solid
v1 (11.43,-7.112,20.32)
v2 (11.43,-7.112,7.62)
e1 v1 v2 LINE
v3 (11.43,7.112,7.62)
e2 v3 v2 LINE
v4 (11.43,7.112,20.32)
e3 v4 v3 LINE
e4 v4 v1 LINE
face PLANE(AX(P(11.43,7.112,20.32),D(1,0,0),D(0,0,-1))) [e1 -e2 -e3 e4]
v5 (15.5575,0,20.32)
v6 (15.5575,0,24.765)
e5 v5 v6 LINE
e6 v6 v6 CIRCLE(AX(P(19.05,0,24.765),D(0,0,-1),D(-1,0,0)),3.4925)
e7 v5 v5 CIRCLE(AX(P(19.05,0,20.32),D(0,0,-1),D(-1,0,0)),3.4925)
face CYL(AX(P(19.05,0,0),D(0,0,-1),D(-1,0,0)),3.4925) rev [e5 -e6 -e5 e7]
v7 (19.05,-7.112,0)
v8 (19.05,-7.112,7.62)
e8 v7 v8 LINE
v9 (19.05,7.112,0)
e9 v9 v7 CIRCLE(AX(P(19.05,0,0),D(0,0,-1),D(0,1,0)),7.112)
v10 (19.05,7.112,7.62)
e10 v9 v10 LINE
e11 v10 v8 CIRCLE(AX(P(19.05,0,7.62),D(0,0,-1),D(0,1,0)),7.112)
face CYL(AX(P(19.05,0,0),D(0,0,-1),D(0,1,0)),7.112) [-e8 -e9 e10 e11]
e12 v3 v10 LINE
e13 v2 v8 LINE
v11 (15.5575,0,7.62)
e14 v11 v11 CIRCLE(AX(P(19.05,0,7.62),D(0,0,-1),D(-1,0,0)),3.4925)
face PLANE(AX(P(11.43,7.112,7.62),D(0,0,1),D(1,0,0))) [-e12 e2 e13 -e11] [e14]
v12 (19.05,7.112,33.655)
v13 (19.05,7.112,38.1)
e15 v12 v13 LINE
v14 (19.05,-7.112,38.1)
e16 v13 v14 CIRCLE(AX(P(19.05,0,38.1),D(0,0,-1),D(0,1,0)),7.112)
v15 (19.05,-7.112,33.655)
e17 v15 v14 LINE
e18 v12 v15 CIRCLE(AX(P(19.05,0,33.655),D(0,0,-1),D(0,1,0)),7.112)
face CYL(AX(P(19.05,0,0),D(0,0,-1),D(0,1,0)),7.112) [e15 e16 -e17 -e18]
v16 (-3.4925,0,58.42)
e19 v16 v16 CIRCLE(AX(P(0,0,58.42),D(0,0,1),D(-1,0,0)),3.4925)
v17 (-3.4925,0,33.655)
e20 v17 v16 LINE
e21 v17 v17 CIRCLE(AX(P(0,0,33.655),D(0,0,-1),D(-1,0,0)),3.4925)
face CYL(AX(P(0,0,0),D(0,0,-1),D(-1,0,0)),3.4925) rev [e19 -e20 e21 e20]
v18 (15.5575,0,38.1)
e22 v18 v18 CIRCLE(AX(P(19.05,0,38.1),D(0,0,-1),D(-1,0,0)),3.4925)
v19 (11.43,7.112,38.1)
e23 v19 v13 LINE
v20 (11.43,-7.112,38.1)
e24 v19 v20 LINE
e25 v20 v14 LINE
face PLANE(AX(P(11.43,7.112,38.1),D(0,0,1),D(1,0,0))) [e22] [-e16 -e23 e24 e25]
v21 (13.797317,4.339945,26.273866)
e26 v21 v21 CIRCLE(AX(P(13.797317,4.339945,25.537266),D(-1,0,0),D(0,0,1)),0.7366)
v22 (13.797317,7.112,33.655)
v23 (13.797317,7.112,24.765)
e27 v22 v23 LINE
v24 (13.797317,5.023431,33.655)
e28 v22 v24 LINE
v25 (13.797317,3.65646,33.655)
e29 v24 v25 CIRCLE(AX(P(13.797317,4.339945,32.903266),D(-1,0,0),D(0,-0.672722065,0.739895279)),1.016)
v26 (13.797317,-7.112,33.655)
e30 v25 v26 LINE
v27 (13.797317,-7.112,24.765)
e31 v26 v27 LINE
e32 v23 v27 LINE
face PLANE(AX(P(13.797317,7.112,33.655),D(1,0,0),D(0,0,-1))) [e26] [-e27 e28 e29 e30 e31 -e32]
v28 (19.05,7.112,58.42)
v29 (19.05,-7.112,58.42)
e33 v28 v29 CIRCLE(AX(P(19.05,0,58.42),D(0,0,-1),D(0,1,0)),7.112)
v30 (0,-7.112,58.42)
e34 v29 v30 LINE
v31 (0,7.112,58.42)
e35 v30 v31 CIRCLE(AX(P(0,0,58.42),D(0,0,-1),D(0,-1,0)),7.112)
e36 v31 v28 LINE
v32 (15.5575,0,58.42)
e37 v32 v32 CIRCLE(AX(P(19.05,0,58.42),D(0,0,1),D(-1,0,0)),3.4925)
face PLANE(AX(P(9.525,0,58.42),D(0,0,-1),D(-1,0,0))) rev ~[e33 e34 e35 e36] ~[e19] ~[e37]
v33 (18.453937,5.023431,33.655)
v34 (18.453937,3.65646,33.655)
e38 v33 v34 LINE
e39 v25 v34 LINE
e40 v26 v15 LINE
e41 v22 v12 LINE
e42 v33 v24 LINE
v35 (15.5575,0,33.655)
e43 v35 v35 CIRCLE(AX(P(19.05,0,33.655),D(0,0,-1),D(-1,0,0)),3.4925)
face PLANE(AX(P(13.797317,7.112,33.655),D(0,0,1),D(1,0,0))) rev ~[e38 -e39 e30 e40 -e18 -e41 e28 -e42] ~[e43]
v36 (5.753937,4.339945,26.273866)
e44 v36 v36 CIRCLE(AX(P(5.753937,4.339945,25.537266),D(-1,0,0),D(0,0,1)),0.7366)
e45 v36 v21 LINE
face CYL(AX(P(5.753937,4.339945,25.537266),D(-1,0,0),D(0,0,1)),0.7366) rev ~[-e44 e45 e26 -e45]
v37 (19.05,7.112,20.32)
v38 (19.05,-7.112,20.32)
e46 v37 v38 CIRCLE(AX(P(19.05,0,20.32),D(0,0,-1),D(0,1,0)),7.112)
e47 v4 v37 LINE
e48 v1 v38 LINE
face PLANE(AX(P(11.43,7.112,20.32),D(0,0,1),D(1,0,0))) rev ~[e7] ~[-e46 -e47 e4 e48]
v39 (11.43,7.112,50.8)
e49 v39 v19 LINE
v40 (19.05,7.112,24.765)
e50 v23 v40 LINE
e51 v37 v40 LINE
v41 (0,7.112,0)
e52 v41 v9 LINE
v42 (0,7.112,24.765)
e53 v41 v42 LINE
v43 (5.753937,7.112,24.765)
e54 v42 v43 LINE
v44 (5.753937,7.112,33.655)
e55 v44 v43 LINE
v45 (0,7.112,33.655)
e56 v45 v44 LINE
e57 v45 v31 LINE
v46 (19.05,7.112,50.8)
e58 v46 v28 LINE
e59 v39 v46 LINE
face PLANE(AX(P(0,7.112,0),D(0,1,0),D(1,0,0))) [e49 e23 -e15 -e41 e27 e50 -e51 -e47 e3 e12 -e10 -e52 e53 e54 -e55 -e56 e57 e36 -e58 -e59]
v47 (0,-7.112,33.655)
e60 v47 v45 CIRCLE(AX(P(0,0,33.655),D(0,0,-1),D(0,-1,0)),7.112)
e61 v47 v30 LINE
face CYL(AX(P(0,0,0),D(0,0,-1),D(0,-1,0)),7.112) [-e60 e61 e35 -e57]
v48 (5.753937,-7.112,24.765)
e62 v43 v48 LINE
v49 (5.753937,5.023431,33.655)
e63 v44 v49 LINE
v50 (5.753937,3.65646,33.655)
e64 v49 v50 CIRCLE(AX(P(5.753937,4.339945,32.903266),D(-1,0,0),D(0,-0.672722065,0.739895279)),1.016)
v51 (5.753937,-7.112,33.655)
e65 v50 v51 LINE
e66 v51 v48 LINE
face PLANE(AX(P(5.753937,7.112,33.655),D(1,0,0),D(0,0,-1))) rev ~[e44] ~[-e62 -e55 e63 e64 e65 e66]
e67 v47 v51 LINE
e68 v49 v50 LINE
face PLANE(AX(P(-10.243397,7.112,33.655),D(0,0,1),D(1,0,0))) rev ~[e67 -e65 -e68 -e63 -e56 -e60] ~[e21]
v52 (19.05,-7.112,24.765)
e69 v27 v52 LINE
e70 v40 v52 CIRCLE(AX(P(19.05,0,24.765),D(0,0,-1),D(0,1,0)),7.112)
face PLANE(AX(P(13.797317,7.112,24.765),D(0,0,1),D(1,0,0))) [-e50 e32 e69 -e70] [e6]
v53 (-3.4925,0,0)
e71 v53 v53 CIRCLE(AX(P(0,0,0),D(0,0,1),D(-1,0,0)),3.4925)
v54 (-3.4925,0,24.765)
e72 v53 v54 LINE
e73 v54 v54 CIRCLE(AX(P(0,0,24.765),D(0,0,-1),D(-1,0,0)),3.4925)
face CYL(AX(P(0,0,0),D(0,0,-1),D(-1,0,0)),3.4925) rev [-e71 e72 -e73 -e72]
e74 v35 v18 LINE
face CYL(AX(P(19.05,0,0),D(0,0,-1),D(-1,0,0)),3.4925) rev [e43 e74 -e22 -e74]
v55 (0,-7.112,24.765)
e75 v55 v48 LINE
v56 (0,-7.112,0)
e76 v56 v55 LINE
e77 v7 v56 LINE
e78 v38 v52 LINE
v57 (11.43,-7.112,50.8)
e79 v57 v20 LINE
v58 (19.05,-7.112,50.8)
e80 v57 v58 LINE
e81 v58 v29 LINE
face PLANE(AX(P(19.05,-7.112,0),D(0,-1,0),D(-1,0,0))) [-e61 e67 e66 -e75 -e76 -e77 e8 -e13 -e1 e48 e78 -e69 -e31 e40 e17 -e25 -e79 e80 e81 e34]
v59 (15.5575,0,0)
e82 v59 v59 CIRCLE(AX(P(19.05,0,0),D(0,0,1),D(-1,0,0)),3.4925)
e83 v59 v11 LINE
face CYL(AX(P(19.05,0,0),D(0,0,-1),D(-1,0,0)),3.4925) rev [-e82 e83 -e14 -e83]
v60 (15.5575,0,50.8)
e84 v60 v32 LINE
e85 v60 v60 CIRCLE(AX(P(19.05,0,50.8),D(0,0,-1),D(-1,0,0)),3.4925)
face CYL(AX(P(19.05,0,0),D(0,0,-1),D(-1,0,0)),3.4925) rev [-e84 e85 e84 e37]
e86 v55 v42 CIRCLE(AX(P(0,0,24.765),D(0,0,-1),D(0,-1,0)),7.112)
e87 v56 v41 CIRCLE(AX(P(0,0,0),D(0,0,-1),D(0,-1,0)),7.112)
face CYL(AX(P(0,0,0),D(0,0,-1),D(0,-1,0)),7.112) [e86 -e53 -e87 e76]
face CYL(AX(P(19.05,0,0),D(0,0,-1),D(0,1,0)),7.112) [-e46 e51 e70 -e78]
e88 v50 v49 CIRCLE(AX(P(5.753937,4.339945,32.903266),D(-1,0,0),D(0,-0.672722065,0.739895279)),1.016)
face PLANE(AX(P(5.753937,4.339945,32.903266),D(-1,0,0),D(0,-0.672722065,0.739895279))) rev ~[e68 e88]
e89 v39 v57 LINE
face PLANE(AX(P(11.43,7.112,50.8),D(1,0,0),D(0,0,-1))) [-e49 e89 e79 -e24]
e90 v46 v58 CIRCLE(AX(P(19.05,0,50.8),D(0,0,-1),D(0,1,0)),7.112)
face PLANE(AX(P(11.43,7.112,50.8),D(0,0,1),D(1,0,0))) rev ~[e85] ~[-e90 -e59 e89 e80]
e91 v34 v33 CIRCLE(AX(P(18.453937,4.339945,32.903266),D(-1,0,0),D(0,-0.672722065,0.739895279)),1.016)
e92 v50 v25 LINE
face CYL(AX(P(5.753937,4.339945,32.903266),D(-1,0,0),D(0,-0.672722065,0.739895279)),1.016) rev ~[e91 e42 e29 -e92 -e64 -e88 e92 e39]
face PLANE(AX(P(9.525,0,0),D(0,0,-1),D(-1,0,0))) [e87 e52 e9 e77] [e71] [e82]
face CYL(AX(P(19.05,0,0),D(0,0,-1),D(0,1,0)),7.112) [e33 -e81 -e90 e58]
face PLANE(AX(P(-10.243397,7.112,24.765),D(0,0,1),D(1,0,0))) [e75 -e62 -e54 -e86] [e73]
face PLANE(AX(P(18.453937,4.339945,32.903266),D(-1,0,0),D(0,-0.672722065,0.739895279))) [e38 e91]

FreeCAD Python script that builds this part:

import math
import FreeCAD as App
import Part
import Sketcher

V = App.Vector
Q = App.Units.Quantity

doc = App.newDocument("Part")
body = doc.addObject("PartDesign::Body", "Body")

sketch1 = body.newObject("Sketcher::SketchObject", "Sketch")
sketch1.AttachmentSupport = (doc.getObject("XY_Plane"), [""])
sketch1.MapMode = "FlatFace"
sketch1.addGeometry([
    Part.LineSegment(V(19.1, 7.1, 0), V(0, 7.1, 0)),
    Part.ArcOfCircle(Part.Circle(V(0, 0, 0), V(0, 0, 1), 7.1), math.radians(90), math.radians(270)),
    Part.LineSegment(V(0, -7.1, 0), V(19.1, -7.1, 0)),
    Part.ArcOfCircle(Part.Circle(V(19.1, 0, 0), V(0, 0, 1), 7.1), math.radians(-90), math.radians(90)),
    Part.Circle(V(19.1, 0, 0), V(0, 0, 1), 3.5),
    Part.Circle(V(0, 0, 0), V(0, 0, 1), 3.5),
], False)
sketch1.addConstraint([
    Sketcher.Constraint("Tangent", 0, 2, 1, 1),
    Sketcher.Constraint("Tangent", 1, 2, 2, 1),
    Sketcher.Constraint("Tangent", 2, 2, 3, 1),
    Sketcher.Constraint("Tangent", 3, 2, 0, 1),
    Sketcher.Constraint("Horizontal", 0),
    Sketcher.Constraint("Horizontal", 2),
    Sketcher.Constraint("Coincident", 1, 3, -1, 1),
    Sketcher.Constraint("Coincident", 5, 3, -1, 1),
    Sketcher.Constraint("Coincident", 4, 3, 3, 3),
    Sketcher.Constraint("Equal", 4, 5),
    Sketcher.Constraint("Radius", 1, Q("0.28 in")),
    Sketcher.Constraint("Diameter", 4, Q("0.275 in")),
    Sketcher.Constraint("DistanceX", 0, 2, 0, 1, Q("0.75 in")),
])
pad1 = body.newObject("PartDesign::Pad", "Pad")
pad1.Profile = sketch1
pad1.Length = Q("2.3 in")

sketch2 = body.newObject("Sketcher::SketchObject", "Sketch001")
sketch2.AttachmentSupport = (doc.getObject("XZ_Plane"), [""])
sketch2.MapMode = "FlatFace"
sketch2.AttachmentOffset = App.Placement(V(0, 0, -0.28 * 25.4), App.Rotation())
sketch2.addGeometry([
    Part.LineSegment(V(11, 8, 0), V(11, 20, 0)),
    Part.LineSegment(V(11, 20, 0), V(33, 20, 0)),
    Part.LineSegment(V(33, 20, 0), V(33, 8, 0)),
    Part.LineSegment(V(33, 8, 0), V(11, 8, 0)),
    Part.LineSegment(V(11, 38, 0), V(11, 51, 0)),
    Part.LineSegment(V(11, 51, 0), V(38, 51, 0)),
    Part.LineSegment(V(38, 51, 0), V(38, 38, 0)),
    Part.LineSegment(V(38, 38, 0), V(11, 38, 0)),
    Part.LineSegment(V(14, 25, 0), V(14, 34, 0)),
    Part.LineSegment(V(14, 34, 0), V(26, 34, 0)),
    Part.LineSegment(V(26, 34, 0), V(26, 25, 0)),
    Part.LineSegment(V(26, 25, 0), V(14, 25, 0)),
], False)
sketch2.addConstraint([
    Sketcher.Constraint("Coincident", 0, 2, 1, 1),
    Sketcher.Constraint("Coincident", 1, 2, 2, 1),
    Sketcher.Constraint("Coincident", 2, 2, 3, 1),
    Sketcher.Constraint("Coincident", 3, 2, 0, 1),
    Sketcher.Constraint("Coincident", 4, 2, 5, 1),
    Sketcher.Constraint("Coincident", 5, 2, 6, 1),
    Sketcher.Constraint("Coincident", 6, 2, 7, 1),
    Sketcher.Constraint("Coincident", 7, 2, 4, 1),
    Sketcher.Constraint("Coincident", 8, 2, 9, 1),
    Sketcher.Constraint("Coincident", 9, 2, 10, 1),
    Sketcher.Constraint("Coincident", 10, 2, 11, 1),
    Sketcher.Constraint("Coincident", 11, 2, 8, 1),
    Sketcher.Constraint("Vertical", 0),
    Sketcher.Constraint("Horizontal", 1),
    Sketcher.Constraint("Vertical", 2),
    Sketcher.Constraint("Horizontal", 3),
    Sketcher.Constraint("Vertical", 4),
    Sketcher.Constraint("Horizontal", 5),
    Sketcher.Constraint("Vertical", 6),
    Sketcher.Constraint("Horizontal", 7),
    Sketcher.Constraint("Vertical", 8),
    Sketcher.Constraint("Horizontal", 9),
    Sketcher.Constraint("Vertical", 10),
    Sketcher.Constraint("Horizontal", 11),
    Sketcher.Constraint("Vertical", 3, 2, 4, 2),
    Sketcher.Constraint("Equal", 11, 0),
    Sketcher.Constraint("Equal", 2, 4),
    Sketcher.Constraint("DistanceX", 9, 1, 9, 2, Q("0.5 in")),
    Sketcher.Constraint("DistanceY", -1, 1, 4, 2, Q("2 in")),
    Sketcher.Constraint("DistanceY", 8, 1, 8, 2, Q("0.35 in")),
    Sketcher.Constraint("DistanceY", -1, 1, 0, 2, Q("0.8 in")),
    Sketcher.Constraint("DistanceX", -1, 1, 0, 2, Q("0.45 in")),
    Sketcher.Constraint("DistanceY", -1, 1, 8, 2, Q("1.325 in")),
    Sketcher.Constraint("DistanceX", 1, 1, 1, 2, Q("21.884407 mm")),
    Sketcher.Constraint("DistanceX", 5, 1, 5, 2, Q("26.524954 mm")),
    Sketcher.Constraint("DistanceX", 8, 2, 1, 2, Q("19.51709 mm")),
])
pocket1 = body.newObject("PartDesign::Pocket", "Pocket")
pocket1.Profile = sketch2
pocket1.Length = Q("0.56 in")
pocket1.Reversed = True

sketch3 = body.newObject("Sketcher::SketchObject", "Sketch002")
sketch3.AttachmentSupport = (doc.getObject("XZ_Plane"), [""])
sketch3.MapMode = "FlatFace"
sketch3.AttachmentOffset = App.Placement(V(0, 0, -0.28 * 25.4), App.Rotation())
sketch3.addGeometry([
    Part.LineSegment(V(-10, 25, 0), V(-10, 34, 0)),
    Part.LineSegment(V(-10, 34, 0), V(6, 34, 0)),
    Part.LineSegment(V(6, 34, 0), V(6, 25, 0)),
    Part.LineSegment(V(6, 25, 0), V(-10, 25, 0)),
], False)
sketch3.addConstraint([
    Sketcher.Constraint("Coincident", 0, 2, 1, 1),
    Sketcher.Constraint("Coincident", 1, 2, 2, 1),
    Sketcher.Constraint("Coincident", 2, 2, 3, 1),
    Sketcher.Constraint("Coincident", 3, 2, 0, 1),
    Sketcher.Constraint("Vertical", 0),
    Sketcher.Constraint("Horizontal", 1),
    Sketcher.Constraint("Vertical", 2),
    Sketcher.Constraint("Horizontal", 3),
    Sketcher.Constraint("DistanceY", 0, 1, 0, 2, Q("0.35 in")),
    Sketcher.Constraint("DistanceY", -1, 1, 0, 2, Q("1.325 in")),
    Sketcher.Constraint("DistanceX", 1, 1, 1, 2, Q("15.997334 mm")),
    Sketcher.Constraint("DistanceX", 0, 2, -1, 1, Q("10.243397 mm")),
])
pocket2 = body.newObject("PartDesign::Pocket", "Pocket001")
pocket2.Profile = sketch3
pocket2.Length = Q("0.56 in")
pocket2.Reversed = True

sketch4 = body.newObject("Sketcher::SketchObject", "Sketch003")
sketch4.AttachmentSupport = (doc.getObject("YZ_Plane"), [""])
sketch4.MapMode = "FlatFace"
sketch4.AttachmentOffset = App.Placement(V(0, 0, 5.753937), App.Rotation())
sketch4.addGeometry([
    Part.Circle(V(4.3, 25.5, 0), V(0, 0, 1), 0.7),
    Part.Circle(V(4.3, 32.9, 0), V(0, 0, 1), 1),
], False)
sketch4.addConstraint([
    Sketcher.Constraint("Vertical", 0, 3, 1, 3),
    Sketcher.Constraint("Diameter", 1, Q("0.08 in")),
    Sketcher.Constraint("Diameter", 0, Q("0.058 in")),
    Sketcher.Constraint("DistanceY", 0, 3, 1, 3, Q("0.29 in")),
    Sketcher.Constraint("DistanceX", -1, 1, 0, 3, Q("4.339945 mm")),
    Sketcher.Constraint("DistanceY", -1, 1, 0, 3, Q("25.537266 mm")),
])
pocket3 = body.newObject("PartDesign::Pocket", "Pocket002")
pocket3.Profile = sketch4
pocket3.Length = Q("0.5 in")
pocket3.Reversed = True

doc.recompute()
